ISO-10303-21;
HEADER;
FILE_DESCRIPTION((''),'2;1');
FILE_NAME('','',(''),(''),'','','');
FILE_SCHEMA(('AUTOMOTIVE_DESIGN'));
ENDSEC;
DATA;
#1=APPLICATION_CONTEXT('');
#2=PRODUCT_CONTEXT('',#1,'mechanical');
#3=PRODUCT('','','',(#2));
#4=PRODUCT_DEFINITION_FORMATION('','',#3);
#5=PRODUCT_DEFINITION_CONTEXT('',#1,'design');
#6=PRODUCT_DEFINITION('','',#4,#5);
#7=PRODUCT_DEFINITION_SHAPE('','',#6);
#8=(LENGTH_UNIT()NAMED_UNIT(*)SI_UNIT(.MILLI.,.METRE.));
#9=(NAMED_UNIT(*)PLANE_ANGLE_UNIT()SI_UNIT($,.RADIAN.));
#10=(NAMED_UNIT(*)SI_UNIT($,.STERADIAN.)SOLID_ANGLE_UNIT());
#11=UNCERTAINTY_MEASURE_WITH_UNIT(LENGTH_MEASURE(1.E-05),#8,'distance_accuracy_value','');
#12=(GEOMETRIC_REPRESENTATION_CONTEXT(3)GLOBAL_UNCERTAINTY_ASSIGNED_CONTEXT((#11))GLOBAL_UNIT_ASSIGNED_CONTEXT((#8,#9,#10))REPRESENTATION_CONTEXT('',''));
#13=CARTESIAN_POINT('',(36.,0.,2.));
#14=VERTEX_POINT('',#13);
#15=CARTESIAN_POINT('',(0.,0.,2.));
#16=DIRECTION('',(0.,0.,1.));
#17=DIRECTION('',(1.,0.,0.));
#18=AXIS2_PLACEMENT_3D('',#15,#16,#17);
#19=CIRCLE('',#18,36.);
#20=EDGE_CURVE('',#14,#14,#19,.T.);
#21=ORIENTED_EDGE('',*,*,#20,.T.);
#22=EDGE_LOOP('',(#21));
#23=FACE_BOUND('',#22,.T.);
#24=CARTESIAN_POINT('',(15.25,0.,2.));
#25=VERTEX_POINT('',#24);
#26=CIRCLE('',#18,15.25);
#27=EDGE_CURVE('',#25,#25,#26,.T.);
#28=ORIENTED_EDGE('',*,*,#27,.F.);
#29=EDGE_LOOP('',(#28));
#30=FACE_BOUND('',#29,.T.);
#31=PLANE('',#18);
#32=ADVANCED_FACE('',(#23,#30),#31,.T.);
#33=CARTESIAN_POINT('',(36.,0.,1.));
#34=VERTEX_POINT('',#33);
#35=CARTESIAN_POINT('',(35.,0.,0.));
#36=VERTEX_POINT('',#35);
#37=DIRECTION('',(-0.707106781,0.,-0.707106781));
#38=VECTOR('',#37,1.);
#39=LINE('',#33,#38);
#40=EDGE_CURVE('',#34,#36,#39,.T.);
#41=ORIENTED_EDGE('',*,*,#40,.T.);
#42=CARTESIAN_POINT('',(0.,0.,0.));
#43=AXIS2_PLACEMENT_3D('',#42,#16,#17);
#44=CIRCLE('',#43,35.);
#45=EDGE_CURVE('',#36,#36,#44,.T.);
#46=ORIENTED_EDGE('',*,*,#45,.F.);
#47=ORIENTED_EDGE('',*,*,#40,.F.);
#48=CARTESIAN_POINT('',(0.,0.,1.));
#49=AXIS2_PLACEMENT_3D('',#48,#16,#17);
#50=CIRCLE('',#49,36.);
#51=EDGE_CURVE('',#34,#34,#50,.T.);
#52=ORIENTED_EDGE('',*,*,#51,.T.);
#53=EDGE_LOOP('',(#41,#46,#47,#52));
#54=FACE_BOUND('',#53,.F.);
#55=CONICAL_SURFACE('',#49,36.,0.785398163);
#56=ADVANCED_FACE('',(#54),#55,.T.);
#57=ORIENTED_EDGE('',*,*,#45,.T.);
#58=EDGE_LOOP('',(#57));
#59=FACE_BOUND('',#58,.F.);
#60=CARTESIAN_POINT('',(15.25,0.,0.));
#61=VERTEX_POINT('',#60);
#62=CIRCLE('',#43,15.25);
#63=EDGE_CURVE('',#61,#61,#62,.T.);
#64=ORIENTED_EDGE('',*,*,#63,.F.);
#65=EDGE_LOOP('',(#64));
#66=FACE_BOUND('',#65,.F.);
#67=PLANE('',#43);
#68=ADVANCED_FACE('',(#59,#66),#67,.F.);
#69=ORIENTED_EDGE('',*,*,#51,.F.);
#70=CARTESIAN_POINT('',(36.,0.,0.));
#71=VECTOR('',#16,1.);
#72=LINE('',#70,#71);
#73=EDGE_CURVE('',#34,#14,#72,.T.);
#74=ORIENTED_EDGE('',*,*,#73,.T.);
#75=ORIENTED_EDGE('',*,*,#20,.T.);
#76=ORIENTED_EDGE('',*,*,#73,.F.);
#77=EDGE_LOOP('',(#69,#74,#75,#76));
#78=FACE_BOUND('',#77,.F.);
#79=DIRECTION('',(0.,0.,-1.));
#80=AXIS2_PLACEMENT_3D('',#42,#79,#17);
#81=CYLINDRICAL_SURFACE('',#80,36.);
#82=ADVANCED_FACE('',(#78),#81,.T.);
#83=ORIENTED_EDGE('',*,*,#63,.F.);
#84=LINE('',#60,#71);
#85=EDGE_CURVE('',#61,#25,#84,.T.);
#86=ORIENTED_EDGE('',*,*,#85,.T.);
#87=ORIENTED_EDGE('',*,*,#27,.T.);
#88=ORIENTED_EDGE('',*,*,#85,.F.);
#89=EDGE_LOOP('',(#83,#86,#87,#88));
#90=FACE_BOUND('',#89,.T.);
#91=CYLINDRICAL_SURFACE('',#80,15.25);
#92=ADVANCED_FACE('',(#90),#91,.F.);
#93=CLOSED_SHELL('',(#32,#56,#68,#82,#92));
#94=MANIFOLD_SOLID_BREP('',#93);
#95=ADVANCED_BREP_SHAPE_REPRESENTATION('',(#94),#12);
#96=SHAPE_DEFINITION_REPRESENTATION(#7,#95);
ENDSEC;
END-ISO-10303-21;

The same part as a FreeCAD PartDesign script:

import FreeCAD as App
import Part
import Sketcher
from FreeCAD import Vector


def edges_at(feature, points):
    """Names of the edges that pass closest to the given points."""
    edges = feature.Shape.Edges
    near = lambda p: min(range(len(edges)), key=lambda i: edges[i].distToShape(Part.Vertex(*p))[0])
    return sorted({f"Edge{near(p) + 1}" for p in points})

doc = App.newDocument("Part")
body = doc.addObject("PartDesign::Body", "Body")

sketch1 = doc.addObject("Sketcher::SketchObject", "Sketch")
body.addObject(sketch1)
sketch1.AttachmentSupport = (doc.XY_Plane, [""])
sketch1.MapMode = "FlatFace"
sketch1.addGeometry([
    Part.Circle(Vector(0, 0, 0), Vector(0, 0, 1), 36),
    Part.Circle(Vector(0, 0, 0), Vector(0, 0, 1), 15),
], False)
sketch1.addConstraint([
    Sketcher.Constraint("Coincident", 0, 3, -1, 1),
    Sketcher.Constraint("Coincident", 1, 3, -1, 1),
    Sketcher.Constraint("Diameter", 0, 72.0),
    Sketcher.Constraint("Diameter", 1, 30.5),
])
pad1 = doc.addObject("PartDesign::Pad", "Pad")
body.addObject(pad1)
pad1.Profile = sketch1
pad1.Length = 2
doc.recompute()

chamfer = doc.addObject("PartDesign::Chamfer", "Chamfer")
body.addObject(chamfer)
chamfer.Base = (pad1, edges_at(pad1, [(-36, 0, 0)]))
chamfer.Size = 1

doc.recompute()
